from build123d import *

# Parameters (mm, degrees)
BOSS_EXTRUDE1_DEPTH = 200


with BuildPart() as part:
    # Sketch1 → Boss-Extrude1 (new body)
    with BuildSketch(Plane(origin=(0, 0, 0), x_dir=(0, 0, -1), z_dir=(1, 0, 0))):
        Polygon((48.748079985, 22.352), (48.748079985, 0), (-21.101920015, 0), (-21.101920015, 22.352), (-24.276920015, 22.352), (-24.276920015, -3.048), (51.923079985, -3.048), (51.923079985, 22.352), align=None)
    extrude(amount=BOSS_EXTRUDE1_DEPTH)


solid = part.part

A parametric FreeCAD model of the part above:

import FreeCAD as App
import Part
import Sketcher

V = App.Vector
Q = App.Units.Quantity


def add_polygon(sketch, points):
    """Adds a closed chain of lines whose ends are joined by coincident constraints."""
    first, n = sketch.GeometryCount, len(points)
    for a, b in zip(points, points[1:] + points[:1]):
        sketch.addGeometry(Part.LineSegment(App.Vector(*a, 0), App.Vector(*b, 0)), False)
    for i in range(n):
        sketch.addConstraint(Sketcher.Constraint("Coincident", first + i, 2, first + (i + 1) % n, 1))

doc = App.newDocument("Part")
params = doc.addObject("Spreadsheet::Sheet", "Params")
for row, (alias, value) in enumerate([
    ("sketch1_width", "1 in"),
    ("sketch1_height", "3 in"),
    ("sketch1_width2", "0.88 in"),
    ("sketch1_height2", "2.75 in"),
    ("pad1_length", "200 mm"),
], start=1):
    params.set(f"A{row}", alias)
    params.set(f"B{row}", "=" + value)
    params.setAlias(f"B{row}", alias)

body = doc.addObject("PartDesign::Body", "Body")

sketch1 = body.newObject("Sketcher::SketchObject", "Sketch")
sketch1.AttachmentSupport = (doc.getObject("YZ_Plane"), [""])
sketch1.MapMode = "FlatFace"
add_polygon(sketch1, [(22.4, -48.7), (0, -48.7), (0, 21.1), (22.4, 21.1), (22.4, 24.3), (-3, 24.3), (-3, -51.9), (22.4, -51.9)])
sketch1.addConstraint([
    Sketcher.Constraint("Horizontal", 0),
    Sketcher.Constraint("Vertical", 1),
    Sketcher.Constraint("Horizontal", 2),
    Sketcher.Constraint("Vertical", 3),
    Sketcher.Constraint("Horizontal", 4),
    Sketcher.Constraint("Vertical", 5),
    Sketcher.Constraint("Horizontal", 6),
    Sketcher.Constraint("Vertical", 7),
    Sketcher.Constraint("PointOnObject", 0, 2, -2),
    Sketcher.Constraint("Vertical", 3, 2, 6, 2),
    Sketcher.Constraint("Equal", 3, 7),
    Sketcher.Constraint("DistanceX", 4, 2, 4, 1, Q("1 in")),
    Sketcher.Constraint("DistanceY", 5, 2, 5, 1, Q("3 in")),
    Sketcher.Constraint("DistanceX", 0, 2, 0, 1, Q("0.88 in")),
    Sketcher.Constraint("DistanceY", 1, 1, 1, 2, Q("2.75 in")),
    Sketcher.Constraint("DistanceY", 0, 2, -1, 1, 48.74808),
])
sketch1.setExpression("Constraints[19]", "Params.sketch1_width")
sketch1.setExpression("Constraints[20]", "Params.sketch1_height")
sketch1.setExpression("Constraints[21]", "Params.sketch1_width2")
sketch1.setExpression("Constraints[22]", "Params.sketch1_height2")
pad1 = body.newObject("PartDesign::Pad", "Pad")
pad1.Profile = sketch1
pad1.setExpression("Length", "Params.pad1_length")

doc.recompute()
